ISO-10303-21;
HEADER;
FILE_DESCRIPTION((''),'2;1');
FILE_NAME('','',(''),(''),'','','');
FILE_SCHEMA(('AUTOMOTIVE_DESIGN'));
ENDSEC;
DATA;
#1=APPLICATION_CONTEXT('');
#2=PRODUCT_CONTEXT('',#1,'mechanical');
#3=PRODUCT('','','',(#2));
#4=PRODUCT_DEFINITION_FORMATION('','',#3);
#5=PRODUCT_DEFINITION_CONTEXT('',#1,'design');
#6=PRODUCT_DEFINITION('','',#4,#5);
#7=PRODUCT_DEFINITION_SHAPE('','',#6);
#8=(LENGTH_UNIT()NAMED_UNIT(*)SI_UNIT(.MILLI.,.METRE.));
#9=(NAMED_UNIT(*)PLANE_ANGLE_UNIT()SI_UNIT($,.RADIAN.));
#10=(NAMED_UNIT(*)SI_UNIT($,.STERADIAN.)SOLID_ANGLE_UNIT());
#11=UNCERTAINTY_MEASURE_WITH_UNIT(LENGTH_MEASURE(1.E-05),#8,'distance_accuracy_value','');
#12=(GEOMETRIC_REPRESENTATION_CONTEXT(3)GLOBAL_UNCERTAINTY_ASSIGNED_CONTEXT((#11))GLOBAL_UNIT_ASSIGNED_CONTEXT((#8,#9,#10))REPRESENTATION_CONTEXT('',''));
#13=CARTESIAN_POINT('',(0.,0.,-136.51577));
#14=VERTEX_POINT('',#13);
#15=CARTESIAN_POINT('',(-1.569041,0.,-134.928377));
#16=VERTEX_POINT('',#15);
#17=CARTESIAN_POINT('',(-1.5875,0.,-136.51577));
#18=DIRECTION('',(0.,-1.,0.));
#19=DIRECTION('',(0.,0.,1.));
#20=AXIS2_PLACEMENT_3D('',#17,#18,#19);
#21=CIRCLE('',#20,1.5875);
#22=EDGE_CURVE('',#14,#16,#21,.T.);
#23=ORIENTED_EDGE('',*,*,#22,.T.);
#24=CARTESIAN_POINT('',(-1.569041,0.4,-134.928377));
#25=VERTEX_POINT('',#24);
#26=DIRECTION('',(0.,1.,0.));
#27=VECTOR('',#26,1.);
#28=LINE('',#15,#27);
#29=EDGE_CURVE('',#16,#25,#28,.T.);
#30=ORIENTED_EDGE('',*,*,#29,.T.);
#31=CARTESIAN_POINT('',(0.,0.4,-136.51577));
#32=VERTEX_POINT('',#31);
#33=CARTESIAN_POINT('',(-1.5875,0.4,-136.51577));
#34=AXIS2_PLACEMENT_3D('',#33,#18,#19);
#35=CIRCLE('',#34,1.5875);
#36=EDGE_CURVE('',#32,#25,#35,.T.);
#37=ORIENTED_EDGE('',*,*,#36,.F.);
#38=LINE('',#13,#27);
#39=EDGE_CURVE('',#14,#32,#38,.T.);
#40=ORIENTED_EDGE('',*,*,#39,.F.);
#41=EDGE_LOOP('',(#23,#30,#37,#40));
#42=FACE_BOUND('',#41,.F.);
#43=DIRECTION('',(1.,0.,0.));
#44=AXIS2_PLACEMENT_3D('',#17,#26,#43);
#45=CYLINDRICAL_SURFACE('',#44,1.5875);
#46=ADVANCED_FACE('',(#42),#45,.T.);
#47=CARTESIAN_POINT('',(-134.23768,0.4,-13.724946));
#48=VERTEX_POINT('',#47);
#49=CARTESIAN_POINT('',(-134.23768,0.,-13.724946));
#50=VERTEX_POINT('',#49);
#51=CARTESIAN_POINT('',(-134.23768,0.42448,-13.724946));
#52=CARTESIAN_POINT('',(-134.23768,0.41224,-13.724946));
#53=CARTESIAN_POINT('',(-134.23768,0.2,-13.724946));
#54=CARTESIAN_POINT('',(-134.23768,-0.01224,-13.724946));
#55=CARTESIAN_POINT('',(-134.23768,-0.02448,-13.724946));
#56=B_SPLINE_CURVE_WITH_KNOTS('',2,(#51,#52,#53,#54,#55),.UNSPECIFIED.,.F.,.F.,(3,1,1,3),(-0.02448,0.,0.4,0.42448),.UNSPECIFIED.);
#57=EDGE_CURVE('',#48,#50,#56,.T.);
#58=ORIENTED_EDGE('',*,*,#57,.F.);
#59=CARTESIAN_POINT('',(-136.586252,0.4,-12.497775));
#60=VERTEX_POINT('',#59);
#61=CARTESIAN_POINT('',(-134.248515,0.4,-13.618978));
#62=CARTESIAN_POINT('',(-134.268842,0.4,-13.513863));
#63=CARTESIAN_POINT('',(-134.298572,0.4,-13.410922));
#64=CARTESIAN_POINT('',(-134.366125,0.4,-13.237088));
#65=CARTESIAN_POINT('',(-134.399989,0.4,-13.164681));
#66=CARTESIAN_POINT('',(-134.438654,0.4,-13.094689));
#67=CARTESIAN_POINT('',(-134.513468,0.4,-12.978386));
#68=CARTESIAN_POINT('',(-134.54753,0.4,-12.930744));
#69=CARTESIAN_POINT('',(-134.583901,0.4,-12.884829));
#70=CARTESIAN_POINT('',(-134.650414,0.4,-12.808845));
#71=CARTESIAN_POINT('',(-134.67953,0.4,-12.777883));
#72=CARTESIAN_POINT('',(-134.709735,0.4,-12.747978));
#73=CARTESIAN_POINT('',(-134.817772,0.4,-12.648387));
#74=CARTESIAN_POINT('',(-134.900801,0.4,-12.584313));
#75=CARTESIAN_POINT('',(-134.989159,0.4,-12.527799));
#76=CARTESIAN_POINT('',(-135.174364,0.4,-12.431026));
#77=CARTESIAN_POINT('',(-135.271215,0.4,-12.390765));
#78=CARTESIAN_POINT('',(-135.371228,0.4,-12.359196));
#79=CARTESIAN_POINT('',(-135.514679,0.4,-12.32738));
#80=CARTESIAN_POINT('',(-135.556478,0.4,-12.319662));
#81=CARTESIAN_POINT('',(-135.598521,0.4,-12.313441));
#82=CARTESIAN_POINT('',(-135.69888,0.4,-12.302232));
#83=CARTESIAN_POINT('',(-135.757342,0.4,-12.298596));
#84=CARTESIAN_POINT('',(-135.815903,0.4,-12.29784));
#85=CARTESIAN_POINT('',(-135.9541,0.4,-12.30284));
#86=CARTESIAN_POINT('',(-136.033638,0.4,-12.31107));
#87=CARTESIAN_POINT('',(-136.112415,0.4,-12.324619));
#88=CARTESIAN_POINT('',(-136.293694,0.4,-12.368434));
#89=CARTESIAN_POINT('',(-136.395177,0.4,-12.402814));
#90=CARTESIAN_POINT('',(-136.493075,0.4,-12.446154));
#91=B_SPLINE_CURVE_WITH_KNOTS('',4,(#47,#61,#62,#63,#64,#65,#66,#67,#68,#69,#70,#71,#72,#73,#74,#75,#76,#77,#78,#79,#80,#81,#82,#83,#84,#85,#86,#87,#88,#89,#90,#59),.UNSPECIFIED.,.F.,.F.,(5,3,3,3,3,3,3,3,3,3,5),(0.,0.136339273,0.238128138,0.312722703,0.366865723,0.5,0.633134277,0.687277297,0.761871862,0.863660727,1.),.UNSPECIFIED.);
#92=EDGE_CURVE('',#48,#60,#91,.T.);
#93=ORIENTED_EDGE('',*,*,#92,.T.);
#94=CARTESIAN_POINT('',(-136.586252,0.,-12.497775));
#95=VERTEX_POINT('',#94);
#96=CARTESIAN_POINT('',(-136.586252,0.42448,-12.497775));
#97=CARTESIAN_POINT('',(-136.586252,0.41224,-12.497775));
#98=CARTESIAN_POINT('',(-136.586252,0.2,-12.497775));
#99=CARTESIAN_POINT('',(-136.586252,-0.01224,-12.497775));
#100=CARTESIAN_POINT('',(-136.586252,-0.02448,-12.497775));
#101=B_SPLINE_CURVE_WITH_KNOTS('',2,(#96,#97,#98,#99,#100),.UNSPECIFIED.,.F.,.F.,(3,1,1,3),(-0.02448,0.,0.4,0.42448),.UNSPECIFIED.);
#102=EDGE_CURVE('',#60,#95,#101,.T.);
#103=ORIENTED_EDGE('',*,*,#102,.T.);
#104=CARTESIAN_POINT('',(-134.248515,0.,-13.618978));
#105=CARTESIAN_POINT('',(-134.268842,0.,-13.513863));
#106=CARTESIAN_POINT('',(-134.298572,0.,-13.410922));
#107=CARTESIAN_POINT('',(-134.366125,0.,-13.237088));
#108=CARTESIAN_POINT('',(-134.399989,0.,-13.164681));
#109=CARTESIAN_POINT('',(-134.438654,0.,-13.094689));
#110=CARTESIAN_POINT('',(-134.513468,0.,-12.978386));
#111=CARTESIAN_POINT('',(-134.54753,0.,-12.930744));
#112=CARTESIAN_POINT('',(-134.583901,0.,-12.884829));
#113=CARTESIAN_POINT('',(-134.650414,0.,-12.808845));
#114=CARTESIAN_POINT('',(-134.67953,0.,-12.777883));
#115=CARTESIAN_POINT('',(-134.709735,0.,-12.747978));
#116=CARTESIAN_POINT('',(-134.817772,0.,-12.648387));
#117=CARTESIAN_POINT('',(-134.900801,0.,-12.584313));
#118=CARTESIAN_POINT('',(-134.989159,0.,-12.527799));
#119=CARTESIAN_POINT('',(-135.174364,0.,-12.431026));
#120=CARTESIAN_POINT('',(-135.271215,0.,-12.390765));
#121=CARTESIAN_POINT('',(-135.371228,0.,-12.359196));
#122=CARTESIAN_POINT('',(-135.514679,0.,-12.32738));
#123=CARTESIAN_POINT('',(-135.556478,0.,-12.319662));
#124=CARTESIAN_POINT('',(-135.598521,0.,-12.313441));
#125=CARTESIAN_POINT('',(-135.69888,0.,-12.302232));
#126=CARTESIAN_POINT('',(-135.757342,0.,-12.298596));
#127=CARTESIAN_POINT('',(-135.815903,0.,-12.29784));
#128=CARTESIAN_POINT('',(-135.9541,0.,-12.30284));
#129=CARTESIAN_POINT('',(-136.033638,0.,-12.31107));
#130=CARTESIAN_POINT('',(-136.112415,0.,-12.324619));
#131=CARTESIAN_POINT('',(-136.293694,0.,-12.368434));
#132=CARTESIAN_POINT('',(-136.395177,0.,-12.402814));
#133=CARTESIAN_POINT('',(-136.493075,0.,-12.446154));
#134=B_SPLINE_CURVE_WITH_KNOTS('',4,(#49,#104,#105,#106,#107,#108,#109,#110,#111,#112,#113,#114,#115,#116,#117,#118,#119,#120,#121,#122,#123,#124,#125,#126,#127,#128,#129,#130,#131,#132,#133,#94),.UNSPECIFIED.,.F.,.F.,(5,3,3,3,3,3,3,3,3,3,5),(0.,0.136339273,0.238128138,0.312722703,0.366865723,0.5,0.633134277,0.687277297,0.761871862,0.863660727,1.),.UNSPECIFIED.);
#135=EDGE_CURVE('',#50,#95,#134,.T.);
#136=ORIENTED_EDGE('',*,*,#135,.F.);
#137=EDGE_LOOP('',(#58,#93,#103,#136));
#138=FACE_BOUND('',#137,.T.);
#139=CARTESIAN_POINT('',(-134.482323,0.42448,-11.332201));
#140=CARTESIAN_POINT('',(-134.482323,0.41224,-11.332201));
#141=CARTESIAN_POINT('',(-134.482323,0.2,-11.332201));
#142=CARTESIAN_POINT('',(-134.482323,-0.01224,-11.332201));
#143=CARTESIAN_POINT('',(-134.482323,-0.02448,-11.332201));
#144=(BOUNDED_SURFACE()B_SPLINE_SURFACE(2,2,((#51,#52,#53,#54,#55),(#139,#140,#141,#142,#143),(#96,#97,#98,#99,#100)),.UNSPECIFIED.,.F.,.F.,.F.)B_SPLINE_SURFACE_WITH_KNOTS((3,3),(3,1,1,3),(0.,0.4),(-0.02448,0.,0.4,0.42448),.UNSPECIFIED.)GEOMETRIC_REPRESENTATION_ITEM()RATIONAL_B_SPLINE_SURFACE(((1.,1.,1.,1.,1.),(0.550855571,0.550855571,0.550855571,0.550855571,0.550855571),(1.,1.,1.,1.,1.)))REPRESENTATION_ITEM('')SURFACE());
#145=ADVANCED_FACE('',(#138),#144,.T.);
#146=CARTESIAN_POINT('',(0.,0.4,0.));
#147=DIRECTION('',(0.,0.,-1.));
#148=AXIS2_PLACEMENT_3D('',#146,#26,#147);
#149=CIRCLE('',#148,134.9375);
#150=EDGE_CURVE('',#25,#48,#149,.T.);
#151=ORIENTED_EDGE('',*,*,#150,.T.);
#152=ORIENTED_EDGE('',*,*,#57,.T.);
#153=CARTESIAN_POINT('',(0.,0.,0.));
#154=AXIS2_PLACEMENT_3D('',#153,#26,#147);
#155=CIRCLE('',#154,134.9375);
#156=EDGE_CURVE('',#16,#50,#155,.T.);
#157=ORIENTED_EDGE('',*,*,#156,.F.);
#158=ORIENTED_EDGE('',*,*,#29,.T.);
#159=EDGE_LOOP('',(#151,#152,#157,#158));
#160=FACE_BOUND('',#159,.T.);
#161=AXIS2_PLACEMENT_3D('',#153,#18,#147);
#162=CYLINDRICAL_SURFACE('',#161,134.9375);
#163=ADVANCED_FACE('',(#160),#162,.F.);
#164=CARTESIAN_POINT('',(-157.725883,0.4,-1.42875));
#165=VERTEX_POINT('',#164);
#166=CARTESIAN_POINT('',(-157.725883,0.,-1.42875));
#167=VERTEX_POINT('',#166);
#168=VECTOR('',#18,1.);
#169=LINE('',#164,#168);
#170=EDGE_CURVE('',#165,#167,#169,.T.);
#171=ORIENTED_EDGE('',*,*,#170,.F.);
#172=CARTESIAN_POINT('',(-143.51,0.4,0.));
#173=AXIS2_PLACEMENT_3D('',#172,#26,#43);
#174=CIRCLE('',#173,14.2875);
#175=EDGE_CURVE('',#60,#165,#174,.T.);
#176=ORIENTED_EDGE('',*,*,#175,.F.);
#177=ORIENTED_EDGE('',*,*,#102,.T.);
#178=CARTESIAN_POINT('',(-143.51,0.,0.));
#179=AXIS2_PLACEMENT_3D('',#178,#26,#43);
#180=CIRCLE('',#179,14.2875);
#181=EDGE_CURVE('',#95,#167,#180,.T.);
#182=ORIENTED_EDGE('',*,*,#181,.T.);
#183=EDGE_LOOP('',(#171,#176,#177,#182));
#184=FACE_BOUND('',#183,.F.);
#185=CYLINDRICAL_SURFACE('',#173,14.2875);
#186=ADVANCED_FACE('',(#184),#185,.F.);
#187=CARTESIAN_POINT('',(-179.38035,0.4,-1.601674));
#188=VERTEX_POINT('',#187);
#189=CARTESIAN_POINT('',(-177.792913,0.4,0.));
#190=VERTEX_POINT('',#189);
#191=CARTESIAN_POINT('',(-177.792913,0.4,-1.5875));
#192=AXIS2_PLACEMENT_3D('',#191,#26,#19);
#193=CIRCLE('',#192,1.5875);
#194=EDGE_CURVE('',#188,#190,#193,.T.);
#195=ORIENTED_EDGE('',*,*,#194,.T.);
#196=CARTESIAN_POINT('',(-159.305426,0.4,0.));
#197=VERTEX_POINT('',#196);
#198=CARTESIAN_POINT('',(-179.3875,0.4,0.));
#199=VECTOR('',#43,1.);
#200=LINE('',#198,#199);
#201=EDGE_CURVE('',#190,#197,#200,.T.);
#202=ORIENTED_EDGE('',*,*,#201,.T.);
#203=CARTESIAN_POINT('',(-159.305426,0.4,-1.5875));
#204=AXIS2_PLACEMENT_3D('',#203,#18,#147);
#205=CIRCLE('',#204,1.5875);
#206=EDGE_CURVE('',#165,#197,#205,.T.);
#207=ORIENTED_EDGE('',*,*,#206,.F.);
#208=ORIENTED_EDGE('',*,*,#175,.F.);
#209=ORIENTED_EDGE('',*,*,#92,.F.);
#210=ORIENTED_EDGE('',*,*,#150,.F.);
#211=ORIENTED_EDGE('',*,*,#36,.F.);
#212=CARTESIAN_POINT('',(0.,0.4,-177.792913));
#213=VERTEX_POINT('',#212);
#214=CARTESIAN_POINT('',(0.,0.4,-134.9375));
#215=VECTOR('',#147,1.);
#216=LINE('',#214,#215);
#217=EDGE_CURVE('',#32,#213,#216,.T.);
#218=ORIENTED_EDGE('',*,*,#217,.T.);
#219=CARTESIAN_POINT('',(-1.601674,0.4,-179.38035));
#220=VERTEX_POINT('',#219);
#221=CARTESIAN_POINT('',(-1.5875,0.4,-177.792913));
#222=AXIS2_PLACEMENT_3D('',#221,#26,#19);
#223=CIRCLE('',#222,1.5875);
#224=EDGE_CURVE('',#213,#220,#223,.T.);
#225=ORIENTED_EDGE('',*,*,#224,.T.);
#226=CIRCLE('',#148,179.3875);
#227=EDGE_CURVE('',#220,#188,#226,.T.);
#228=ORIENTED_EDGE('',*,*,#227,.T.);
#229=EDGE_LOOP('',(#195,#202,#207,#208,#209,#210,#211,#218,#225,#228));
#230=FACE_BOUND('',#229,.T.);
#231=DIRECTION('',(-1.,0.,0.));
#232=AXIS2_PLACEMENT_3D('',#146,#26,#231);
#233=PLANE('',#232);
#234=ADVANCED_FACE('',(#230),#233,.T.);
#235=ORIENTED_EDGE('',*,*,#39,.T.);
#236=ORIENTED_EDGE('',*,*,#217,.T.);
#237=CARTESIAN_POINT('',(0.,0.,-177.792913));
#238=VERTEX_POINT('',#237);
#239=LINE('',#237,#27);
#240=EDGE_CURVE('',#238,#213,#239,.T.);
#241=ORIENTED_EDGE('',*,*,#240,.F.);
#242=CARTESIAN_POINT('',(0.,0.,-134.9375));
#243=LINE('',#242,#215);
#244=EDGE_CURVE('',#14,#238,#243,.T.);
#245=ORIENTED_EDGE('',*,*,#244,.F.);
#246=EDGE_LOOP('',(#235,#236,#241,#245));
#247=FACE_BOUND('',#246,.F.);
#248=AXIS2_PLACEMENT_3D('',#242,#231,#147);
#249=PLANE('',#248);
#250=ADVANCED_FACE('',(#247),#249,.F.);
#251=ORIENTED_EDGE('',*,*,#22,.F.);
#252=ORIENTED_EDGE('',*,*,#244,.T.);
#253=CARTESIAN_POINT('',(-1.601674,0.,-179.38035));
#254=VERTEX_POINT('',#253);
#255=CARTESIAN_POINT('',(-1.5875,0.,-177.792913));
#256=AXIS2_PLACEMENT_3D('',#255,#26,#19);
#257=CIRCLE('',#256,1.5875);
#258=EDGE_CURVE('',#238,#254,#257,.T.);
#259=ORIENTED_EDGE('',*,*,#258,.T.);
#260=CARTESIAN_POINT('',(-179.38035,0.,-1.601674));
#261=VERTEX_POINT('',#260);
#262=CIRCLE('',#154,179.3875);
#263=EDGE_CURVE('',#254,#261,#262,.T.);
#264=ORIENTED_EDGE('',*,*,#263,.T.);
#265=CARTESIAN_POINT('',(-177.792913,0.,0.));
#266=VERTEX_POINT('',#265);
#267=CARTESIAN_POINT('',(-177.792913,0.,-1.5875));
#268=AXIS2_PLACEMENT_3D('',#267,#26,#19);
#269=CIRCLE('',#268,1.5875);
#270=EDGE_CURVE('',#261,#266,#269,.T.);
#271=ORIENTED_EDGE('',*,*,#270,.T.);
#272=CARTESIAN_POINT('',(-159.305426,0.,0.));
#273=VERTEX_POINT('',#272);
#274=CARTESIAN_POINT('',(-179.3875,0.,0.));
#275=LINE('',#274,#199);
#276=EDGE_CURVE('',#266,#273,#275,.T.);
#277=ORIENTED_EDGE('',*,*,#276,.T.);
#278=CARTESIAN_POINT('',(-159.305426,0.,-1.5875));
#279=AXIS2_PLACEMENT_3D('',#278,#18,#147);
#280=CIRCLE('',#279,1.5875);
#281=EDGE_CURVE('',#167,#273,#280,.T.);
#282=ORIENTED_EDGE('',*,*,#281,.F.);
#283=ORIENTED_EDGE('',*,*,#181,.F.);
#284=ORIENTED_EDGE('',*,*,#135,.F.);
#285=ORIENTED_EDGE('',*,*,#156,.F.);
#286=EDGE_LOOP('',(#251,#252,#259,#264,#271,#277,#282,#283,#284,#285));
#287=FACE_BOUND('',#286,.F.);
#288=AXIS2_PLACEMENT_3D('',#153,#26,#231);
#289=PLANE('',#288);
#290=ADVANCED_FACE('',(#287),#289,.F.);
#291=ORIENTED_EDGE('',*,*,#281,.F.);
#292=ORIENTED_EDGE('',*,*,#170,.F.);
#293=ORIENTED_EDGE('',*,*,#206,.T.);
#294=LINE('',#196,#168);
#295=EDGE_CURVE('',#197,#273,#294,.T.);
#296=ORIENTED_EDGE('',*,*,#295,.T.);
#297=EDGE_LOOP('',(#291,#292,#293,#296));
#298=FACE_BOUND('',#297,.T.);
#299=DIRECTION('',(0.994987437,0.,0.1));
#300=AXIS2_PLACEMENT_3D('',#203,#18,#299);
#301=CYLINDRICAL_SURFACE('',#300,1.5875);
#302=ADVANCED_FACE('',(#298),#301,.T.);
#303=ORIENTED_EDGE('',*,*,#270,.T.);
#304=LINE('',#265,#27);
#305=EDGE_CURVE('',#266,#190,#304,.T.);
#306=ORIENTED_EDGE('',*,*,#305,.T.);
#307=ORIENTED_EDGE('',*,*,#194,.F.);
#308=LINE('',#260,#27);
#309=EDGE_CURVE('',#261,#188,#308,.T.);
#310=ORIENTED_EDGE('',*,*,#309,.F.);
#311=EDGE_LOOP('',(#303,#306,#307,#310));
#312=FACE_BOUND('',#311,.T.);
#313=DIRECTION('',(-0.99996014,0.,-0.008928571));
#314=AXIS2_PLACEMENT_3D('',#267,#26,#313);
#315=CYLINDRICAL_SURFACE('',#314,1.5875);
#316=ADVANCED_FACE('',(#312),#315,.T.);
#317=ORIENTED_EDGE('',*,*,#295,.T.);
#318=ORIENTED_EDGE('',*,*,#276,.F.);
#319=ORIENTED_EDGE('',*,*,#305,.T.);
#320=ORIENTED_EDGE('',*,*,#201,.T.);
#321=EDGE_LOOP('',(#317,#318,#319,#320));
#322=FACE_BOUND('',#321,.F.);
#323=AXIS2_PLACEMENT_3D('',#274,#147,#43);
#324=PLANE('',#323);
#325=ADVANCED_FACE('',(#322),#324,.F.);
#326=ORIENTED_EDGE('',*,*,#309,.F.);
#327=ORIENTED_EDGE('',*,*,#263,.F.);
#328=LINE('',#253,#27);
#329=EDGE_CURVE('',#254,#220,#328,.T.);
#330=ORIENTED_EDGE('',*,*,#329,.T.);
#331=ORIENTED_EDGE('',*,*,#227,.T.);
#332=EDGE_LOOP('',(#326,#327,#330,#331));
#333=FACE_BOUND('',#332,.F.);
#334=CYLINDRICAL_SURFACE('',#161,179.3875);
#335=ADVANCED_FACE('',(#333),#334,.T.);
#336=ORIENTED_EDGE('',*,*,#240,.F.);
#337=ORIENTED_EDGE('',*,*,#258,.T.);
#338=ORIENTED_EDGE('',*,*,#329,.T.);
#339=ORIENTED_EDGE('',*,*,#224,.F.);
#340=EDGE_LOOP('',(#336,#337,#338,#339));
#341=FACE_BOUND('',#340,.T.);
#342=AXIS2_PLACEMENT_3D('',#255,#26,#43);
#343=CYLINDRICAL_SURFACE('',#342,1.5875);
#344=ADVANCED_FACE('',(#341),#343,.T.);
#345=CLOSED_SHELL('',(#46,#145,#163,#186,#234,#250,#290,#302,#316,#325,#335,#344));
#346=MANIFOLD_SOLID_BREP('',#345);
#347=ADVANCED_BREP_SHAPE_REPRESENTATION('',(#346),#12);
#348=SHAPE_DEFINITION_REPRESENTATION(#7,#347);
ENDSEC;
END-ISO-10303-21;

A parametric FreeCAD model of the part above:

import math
import FreeCAD as App
import Part
import Sketcher
from FreeCAD import Vector
Q = App.Units.Quantity


def edges_at(feature, points):
    """Names of the edges that pass closest to the given points."""
    edges = feature.Shape.Edges
    near = lambda p: min(range(len(edges)), key=lambda i: edges[i].distToShape(Part.Vertex(*p))[0])
    return sorted({f"Edge{near(p) + 1}" for p in points})

doc = App.newDocument("Part")
params = doc.addObject("Spreadsheet::Sheet", "Params")
for row, (alias, value) in enumerate([
    ("sketch1_radius", "7.0625 in"),
    ("sketch1_radius2", "5.3125 in"),
    ("pad1_length", "0.4 mm"),
    ("sketch2_diameter", "1.125 in"),
    ("fillet_radius", "0.0625 in"),
], start=1):
    params.set(f"A{row}", alias)
    params.set(f"B{row}", "=" + value)
    params.setAlias(f"B{row}", alias)

body = doc.addObject("PartDesign::Body", "Body")

sketch1 = body.newObject("Sketcher::SketchObject", "Sketch")
sketch1.AttachmentSupport = (doc.getObject("XZ_Plane"), [""])
sketch1.MapMode = "FlatFace"
sketch1.addGeometry([
    Part.LineSegment(Vector(0, -135, 0), Vector(0, -179, 0)),
    Part.ArcOfCircle(Part.Circle(Vector(0, 0, 0), Vector(0, 0, 1), 179), math.radians(180), math.radians(270)),
    Part.LineSegment(Vector(-179, 0, 0), Vector(-135, 0, 0)),
    Part.ArcOfCircle(Part.Circle(Vector(0, 0, 0), Vector(0, 0, 1), 135), math.radians(180), math.radians(270)),
], False)
sketch1.addConstraint([
    Sketcher.Constraint("Coincident", 0, 2, 1, 2),
    Sketcher.Constraint("Coincident", 1, 1, 2, 1),
    Sketcher.Constraint("Coincident", 2, 2, 3, 1),
    Sketcher.Constraint("Coincident", 3, 2, 0, 1),
    Sketcher.Constraint("Vertical", 0),
    Sketcher.Constraint("Horizontal", 2),
    Sketcher.Constraint("Coincident", 1, 3, -1, 1),
    Sketcher.Constraint("Coincident", 3, 3, -1, 1),
    Sketcher.Constraint("PointOnObject", 0, 2, -2),
    Sketcher.Constraint("PointOnObject", 1, 1, -1),
    Sketcher.Constraint("Radius", 1, Q("7.0625 in")),
    Sketcher.Constraint("Radius", 3, Q("5.3125 in")),
])
sketch1.setExpression("Constraints[10]", "Params.sketch1_radius")
sketch1.setExpression("Constraints[11]", "Params.sketch1_radius2")
pad1 = body.newObject("PartDesign::Pad", "Pad")
pad1.Profile = sketch1
pad1.setExpression("Length", "Params.pad1_length")
pad1.Reversed = True

sketch2 = body.newObject("Sketcher::SketchObject", "Sketch001")
sketch2.AttachmentSupport = (doc.getObject("XZ_Plane"), [""])
sketch2.MapMode = "FlatFace"
sketch2.AttachmentOffset = App.Placement(Vector(0, 0, -0.4), App.Rotation())
sketch2.addGeometry(Part.Circle(Vector(-144, 0, 0), Vector(0, 0, 1), 14), False)
sketch2.addConstraint([
    Sketcher.Constraint("PointOnObject", 0, 3, -1),
    Sketcher.Constraint("Diameter", 0, Q("1.125 in")),
    Sketcher.Constraint("DistanceX", 0, 3, -1, 1, Q("5.65 in")),
])
sketch2.setExpression("Constraints[1]", "Params.sketch2_diameter")
pocket1 = body.newObject("PartDesign::Pocket", "Pocket")
pocket1.Profile = sketch2
pocket1.Type = "ThroughAll"
pocket1.Reversed = True
doc.recompute()

fillet = body.newObject("PartDesign::Fillet", "Fillet")
fillet.Base = (pocket1, edges_at(pocket1, [
    (-134.482, 0.2, -11.074),
    (-157.798, 0.2, 0),
    (-179.387, 0.2, 0),
    (0, 0.2, -134.938),
    (0, 0.2, -179.387),
]))
fillet.setExpression("Radius", "Params.fillet_radius")

doc.recompute()
